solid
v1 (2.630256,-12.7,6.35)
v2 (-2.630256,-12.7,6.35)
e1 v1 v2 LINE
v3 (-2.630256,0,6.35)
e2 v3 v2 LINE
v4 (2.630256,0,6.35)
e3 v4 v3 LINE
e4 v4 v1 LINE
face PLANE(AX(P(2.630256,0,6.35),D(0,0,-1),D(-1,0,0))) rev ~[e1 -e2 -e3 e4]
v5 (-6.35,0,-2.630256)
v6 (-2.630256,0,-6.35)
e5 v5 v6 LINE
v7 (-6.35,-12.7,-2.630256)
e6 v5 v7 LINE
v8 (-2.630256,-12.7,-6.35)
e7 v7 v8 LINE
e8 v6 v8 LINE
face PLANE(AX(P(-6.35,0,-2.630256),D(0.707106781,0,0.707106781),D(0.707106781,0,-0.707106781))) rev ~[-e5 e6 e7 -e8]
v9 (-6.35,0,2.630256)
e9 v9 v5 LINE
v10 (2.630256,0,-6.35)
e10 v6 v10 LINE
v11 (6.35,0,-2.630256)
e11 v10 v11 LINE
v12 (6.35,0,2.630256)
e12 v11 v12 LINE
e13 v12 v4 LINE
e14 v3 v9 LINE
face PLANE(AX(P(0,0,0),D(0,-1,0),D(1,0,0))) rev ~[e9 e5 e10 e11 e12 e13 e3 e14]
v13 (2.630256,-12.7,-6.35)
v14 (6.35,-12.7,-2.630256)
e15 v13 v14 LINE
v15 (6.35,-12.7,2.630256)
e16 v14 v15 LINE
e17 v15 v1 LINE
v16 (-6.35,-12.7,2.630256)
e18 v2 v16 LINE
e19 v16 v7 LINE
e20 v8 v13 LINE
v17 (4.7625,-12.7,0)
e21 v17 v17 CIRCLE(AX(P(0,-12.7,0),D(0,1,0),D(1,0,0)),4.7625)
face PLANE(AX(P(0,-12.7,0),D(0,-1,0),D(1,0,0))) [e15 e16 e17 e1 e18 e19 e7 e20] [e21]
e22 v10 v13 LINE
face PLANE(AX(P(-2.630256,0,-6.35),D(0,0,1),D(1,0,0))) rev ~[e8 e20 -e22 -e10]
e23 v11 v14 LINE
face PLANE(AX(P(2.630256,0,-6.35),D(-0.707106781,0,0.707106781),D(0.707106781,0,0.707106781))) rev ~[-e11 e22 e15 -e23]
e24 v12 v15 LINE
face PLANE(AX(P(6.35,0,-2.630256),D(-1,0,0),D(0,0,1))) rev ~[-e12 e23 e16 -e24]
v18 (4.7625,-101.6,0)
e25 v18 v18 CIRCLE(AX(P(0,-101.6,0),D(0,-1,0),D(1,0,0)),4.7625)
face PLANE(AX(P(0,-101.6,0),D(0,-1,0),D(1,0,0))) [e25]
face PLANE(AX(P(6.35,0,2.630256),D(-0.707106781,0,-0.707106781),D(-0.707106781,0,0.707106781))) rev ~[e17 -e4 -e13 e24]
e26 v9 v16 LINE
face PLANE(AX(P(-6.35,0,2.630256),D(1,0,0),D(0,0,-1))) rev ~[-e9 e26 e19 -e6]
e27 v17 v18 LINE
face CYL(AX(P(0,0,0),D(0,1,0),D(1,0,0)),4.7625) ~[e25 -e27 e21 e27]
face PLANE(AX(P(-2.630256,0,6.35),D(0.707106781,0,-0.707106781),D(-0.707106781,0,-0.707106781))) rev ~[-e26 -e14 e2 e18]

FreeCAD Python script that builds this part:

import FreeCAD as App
import Part
import Sketcher
Q = App.Units.Quantity


def add_polygon(sketch, points):
    """Adds a closed chain of lines whose ends are joined by coincident constraints."""
    first, n = sketch.GeometryCount, len(points)
    for a, b in zip(points, points[1:] + points[:1]):
        sketch.addGeometry(Part.LineSegment(App.Vector(*a, 0), App.Vector(*b, 0)), False)
    for i in range(n):
        sketch.addConstraint(Sketcher.Constraint("Coincident", first + i, 2, first + (i + 1) % n, 1))

doc = App.newDocument("Part")
params = doc.addObject("Spreadsheet::Sheet", "Params")
for row, (alias, value) in enumerate([
    ("sketch1_diameter", "0.375 in"),
    ("pad1_length", "4 in"),
    ("pad2_length", "0.5 in"),
], start=1):
    params.set(f"A{row}", alias)
    params.set(f"B{row}", "=" + value)
    params.setAlias(f"B{row}", alias)

body = doc.addObject("PartDesign::Body", "Body")

# Sketch on XZ plane
sketch1 = doc.addObject("Sketcher::SketchObject", "Sketch")
body.addObject(sketch1)
sketch1.AttachmentSupport = (doc.XZ_Plane, [""])
sketch1.MapMode = "FlatFace"
sketch1.addGeometry(Part.Circle(App.Vector(0, 0, 0), App.Vector(0, 0, 1), 4.7625), False)
sketch1.addConstraint(Sketcher.Constraint("Coincident", 0, 3, -1, 1))
sketch1.addConstraint(Sketcher.Constraint("Diameter", 0, Q("0.375 in")))
sketch1.setExpression("Constraints[1]", "Params.sketch1_diameter")
pad1 = doc.addObject("PartDesign::Pad", "Pad")
body.addObject(pad1)
pad1.Profile = sketch1
pad1.setExpression("Length", "Params.pad1_length")

# Sketch on XZ plane
sketch2 = doc.addObject("Sketcher::SketchObject", "Sketch001")
body.addObject(sketch2)
sketch2.AttachmentSupport = (doc.XZ_Plane, [""])
sketch2.MapMode = "FlatFace"
add_polygon(sketch2, [(-2.630256, -6.35), (2.630256, -6.35), (6.35, -2.630256), (6.35, 2.630256), (2.630256, 6.35), (-2.630256, 6.35), (-6.35, 2.630256), (-6.35, -2.630256)])  # lines 0-7
sketch2.addConstraint(Sketcher.Constraint("Horizontal", 0))
sketch2.addConstraint(Sketcher.Constraint("Vertical", 2))
sketch2.addConstraint(Sketcher.Constraint("Horizontal", 4))
sketch2.addConstraint(Sketcher.Constraint("Vertical", 6))
sketch2.addConstraint(Sketcher.Constraint("Symmetric", 0, 2, 4, 2, -1, 1))
sketch2.addConstraint(Sketcher.Constraint("Symmetric", 1, 2, 5, 2, -1, 1))
sketch2.addConstraint(Sketcher.Constraint("Perpendicular", 1, 3))
sketch2.addConstraint(Sketcher.Constraint("Perpendicular", 5, 7))
sketch2.addConstraint(Sketcher.Constraint("Horizontal", 2, 2, 5, 2))
sketch2.addConstraint(Sketcher.Constraint("Horizontal", 1, 2, 6, 2))
sketch2.addConstraint(Sketcher.Constraint("Vertical", 0, 2, 3, 2))
sketch2.addConstraint(Sketcher.Constraint("Equal", 4, 2))
sketch2.addConstraint(Sketcher.Constraint("DistanceY", 0, 2, 3, 2, Q("0.5 in")))
sketch2.addConstraint(Sketcher.Constraint("DistanceX", 0, 1, 0, 2, 5.260512))
pad2 = doc.addObject("PartDesign::Pad", "Pad001")
body.addObject(pad2)
pad2.Profile = sketch2
pad2.setExpression("Length", "Params.pad2_length")

doc.recompute()
